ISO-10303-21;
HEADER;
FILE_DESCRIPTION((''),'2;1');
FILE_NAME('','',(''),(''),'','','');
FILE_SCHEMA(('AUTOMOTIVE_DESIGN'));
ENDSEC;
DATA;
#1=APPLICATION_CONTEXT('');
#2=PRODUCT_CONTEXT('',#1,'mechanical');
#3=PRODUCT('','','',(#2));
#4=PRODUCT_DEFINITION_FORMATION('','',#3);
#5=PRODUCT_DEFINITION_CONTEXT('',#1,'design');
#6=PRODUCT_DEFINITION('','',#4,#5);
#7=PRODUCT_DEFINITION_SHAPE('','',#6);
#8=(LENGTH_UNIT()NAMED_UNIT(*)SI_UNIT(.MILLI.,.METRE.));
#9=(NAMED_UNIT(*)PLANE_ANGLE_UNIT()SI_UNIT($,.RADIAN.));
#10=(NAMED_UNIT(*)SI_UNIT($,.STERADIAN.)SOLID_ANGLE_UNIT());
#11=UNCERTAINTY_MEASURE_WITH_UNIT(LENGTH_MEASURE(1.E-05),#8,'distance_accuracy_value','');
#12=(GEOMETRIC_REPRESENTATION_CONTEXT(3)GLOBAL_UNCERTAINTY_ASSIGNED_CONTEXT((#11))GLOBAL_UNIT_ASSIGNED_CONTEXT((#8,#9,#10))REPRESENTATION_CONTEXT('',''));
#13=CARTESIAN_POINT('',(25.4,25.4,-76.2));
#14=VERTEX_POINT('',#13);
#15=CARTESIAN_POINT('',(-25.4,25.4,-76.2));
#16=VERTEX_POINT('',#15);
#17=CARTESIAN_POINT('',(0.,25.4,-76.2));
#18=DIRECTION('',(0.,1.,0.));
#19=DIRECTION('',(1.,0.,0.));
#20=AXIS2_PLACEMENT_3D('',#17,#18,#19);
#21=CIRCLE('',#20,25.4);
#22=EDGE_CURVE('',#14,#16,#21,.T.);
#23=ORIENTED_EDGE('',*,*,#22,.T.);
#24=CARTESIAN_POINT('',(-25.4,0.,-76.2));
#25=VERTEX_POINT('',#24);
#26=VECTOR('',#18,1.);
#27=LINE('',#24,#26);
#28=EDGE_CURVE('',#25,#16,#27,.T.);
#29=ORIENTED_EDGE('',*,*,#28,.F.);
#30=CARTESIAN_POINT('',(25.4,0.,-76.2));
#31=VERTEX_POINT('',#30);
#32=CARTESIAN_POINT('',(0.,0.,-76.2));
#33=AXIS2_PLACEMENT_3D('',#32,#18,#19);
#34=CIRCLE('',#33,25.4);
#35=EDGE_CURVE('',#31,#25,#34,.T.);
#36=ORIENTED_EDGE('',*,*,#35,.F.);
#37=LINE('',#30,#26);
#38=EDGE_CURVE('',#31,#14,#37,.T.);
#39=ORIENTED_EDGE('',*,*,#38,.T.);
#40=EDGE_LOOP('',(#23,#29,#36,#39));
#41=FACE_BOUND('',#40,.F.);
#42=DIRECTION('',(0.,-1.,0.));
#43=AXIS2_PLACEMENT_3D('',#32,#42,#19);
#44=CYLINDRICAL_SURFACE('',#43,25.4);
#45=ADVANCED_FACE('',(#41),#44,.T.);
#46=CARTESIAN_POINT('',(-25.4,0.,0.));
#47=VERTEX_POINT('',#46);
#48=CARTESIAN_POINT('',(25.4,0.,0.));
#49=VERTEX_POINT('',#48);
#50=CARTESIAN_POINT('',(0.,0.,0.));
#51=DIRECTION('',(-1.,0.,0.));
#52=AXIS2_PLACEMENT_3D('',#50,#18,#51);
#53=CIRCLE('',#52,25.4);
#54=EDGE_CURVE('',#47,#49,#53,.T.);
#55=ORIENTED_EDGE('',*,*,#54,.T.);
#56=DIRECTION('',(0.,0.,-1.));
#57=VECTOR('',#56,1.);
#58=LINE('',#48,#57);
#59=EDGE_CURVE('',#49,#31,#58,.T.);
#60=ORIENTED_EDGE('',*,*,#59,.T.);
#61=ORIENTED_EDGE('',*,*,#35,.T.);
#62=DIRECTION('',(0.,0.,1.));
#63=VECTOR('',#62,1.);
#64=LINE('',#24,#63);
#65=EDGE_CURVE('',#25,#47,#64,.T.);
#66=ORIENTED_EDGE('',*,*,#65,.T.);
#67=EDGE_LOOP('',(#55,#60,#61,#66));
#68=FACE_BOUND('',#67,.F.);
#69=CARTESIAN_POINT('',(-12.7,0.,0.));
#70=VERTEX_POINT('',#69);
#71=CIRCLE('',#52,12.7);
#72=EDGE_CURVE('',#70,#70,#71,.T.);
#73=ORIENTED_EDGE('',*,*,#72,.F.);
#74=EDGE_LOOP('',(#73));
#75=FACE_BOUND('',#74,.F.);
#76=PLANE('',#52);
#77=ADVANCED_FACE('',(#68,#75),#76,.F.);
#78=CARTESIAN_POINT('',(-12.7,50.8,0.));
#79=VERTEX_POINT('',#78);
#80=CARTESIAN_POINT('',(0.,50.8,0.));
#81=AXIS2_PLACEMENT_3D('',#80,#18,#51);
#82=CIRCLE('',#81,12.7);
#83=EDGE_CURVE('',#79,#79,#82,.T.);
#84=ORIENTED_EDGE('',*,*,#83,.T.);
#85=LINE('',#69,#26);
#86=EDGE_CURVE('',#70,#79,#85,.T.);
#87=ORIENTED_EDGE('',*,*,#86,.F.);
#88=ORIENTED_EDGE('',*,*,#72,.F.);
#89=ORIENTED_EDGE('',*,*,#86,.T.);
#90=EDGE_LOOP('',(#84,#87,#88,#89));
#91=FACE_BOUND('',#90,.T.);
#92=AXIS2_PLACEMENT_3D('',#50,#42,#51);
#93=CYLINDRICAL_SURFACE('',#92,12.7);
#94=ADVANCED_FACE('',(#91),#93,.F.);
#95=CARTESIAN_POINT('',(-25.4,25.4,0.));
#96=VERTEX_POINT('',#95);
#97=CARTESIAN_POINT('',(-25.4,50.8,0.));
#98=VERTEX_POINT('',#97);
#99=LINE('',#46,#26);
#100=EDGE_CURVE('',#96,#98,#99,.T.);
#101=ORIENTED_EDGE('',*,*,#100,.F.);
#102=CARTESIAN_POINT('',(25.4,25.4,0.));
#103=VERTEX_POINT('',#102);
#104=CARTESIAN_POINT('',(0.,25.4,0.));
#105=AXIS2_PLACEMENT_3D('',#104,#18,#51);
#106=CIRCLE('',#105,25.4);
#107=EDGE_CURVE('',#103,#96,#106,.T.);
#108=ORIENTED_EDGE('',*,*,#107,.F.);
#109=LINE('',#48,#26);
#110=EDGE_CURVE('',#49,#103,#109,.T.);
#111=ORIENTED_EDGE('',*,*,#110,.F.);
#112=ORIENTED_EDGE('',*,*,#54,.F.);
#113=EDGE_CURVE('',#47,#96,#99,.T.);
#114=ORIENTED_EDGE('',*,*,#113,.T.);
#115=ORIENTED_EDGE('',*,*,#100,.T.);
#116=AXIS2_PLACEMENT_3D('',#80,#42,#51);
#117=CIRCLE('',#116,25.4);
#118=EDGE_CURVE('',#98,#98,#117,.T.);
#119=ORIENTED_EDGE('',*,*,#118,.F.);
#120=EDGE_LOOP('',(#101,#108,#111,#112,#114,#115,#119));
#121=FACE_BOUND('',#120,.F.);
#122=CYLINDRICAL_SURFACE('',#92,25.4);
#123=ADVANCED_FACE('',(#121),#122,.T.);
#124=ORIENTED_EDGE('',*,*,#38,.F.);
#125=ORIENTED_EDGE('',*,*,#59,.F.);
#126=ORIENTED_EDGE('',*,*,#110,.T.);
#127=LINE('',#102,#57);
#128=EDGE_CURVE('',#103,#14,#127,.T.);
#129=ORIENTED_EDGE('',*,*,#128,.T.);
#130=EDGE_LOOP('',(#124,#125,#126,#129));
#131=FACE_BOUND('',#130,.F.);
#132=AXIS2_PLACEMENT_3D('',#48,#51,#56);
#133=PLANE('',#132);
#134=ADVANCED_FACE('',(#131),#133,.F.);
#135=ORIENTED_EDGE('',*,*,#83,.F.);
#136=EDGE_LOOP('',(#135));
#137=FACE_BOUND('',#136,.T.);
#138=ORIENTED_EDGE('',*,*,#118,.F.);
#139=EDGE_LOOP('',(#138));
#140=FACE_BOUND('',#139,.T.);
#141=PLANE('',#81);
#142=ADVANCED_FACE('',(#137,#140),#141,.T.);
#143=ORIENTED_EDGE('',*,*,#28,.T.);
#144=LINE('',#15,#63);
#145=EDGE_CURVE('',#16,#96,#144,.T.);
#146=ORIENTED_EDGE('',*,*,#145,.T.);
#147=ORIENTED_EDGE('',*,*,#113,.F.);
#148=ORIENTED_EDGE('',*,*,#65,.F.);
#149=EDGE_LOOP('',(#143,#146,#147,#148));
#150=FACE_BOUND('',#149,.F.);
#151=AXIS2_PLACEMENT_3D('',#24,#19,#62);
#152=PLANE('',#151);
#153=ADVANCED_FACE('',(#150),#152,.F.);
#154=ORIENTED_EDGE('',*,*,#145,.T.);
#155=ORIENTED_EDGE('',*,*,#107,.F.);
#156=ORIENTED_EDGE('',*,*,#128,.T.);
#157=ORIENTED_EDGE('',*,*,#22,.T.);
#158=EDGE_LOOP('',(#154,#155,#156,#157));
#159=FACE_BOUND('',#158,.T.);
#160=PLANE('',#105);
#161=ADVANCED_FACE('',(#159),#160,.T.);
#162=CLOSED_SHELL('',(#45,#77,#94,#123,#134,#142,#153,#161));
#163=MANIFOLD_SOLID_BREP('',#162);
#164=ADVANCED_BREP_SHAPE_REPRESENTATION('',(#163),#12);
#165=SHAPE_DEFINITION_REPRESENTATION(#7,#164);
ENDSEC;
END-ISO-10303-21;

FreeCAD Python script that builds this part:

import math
import FreeCAD as App
import Part
import Sketcher
from FreeCAD import Vector
Q = App.Units.Quantity

doc = App.newDocument("Part")
body = doc.addObject("PartDesign::Body", "Body")

sketch1 = body.newObject("Sketcher::SketchObject", "Sketch")
sketch1.AttachmentSupport = (doc.getObject("XZ_Plane"), [""])
sketch1.MapMode = "FlatFace"
sketch1.addGeometry([
    Part.LineSegment(Vector(-25.4, -76.2, 0), Vector(-25.4, 0, 0)),
    Part.ArcOfCircle(Part.Circle(Vector(0, 0, 0), Vector(0, 0, 1), 25.4), math.radians(180), math.radians(360)),
    Part.LineSegment(Vector(25.4, 0, 0), Vector(25.4, -76.2, 0)),
    Part.ArcOfCircle(Part.Circle(Vector(0, -76.2, 0), Vector(0, 0, 1), 25.4), math.radians(180), math.radians(360)),
], False)
sketch1.addConstraint([
    Sketcher.Constraint("Tangent", 0, 2, 1, 1),
    Sketcher.Constraint("Tangent", 1, 2, 2, 1),
    Sketcher.Constraint("Tangent", 2, 2, 3, 2),
    Sketcher.Constraint("Tangent", 3, 1, 0, 1),
    Sketcher.Constraint("Vertical", 0),
    Sketcher.Constraint("Vertical", 2),
    Sketcher.Constraint("Coincident", 1, 3, -1, 1),
    Sketcher.Constraint("Radius", 1, Q("1 in")),
    Sketcher.Constraint("DistanceY", 0, 1, 0, 2, Q("3 in")),
])
pad1 = body.newObject("PartDesign::Pad", "Pad")
pad1.Profile = sketch1
pad1.Length = Q("1 in")
pad1.Reversed = True

sketch2 = body.newObject("Sketcher::SketchObject", "Sketch001")
sketch2.AttachmentSupport = (doc.getObject("XZ_Plane"), [""])
sketch2.MapMode = "FlatFace"
sketch2.addGeometry([
    Part.Circle(Vector(0, 0, 0), Vector(0, 0, 1), 25.4),
    Part.Circle(Vector(0, 0, 0), Vector(0, 0, 1), 12.7),
], False)
sketch2.addConstraint([
    Sketcher.Constraint("Coincident", 0, 3, -1, 1),
    Sketcher.Constraint("Coincident", 1, 3, -1, 1),
    Sketcher.Constraint("Diameter", 0, Q("2 in")),
    Sketcher.Constraint("Diameter", 1, Q("1 in")),
])
pad2 = body.newObject("PartDesign::Pad", "Pad001")
pad2.Profile = sketch2
pad2.Length = Q("2 in")
pad2.Reversed = True

doc.recompute()
